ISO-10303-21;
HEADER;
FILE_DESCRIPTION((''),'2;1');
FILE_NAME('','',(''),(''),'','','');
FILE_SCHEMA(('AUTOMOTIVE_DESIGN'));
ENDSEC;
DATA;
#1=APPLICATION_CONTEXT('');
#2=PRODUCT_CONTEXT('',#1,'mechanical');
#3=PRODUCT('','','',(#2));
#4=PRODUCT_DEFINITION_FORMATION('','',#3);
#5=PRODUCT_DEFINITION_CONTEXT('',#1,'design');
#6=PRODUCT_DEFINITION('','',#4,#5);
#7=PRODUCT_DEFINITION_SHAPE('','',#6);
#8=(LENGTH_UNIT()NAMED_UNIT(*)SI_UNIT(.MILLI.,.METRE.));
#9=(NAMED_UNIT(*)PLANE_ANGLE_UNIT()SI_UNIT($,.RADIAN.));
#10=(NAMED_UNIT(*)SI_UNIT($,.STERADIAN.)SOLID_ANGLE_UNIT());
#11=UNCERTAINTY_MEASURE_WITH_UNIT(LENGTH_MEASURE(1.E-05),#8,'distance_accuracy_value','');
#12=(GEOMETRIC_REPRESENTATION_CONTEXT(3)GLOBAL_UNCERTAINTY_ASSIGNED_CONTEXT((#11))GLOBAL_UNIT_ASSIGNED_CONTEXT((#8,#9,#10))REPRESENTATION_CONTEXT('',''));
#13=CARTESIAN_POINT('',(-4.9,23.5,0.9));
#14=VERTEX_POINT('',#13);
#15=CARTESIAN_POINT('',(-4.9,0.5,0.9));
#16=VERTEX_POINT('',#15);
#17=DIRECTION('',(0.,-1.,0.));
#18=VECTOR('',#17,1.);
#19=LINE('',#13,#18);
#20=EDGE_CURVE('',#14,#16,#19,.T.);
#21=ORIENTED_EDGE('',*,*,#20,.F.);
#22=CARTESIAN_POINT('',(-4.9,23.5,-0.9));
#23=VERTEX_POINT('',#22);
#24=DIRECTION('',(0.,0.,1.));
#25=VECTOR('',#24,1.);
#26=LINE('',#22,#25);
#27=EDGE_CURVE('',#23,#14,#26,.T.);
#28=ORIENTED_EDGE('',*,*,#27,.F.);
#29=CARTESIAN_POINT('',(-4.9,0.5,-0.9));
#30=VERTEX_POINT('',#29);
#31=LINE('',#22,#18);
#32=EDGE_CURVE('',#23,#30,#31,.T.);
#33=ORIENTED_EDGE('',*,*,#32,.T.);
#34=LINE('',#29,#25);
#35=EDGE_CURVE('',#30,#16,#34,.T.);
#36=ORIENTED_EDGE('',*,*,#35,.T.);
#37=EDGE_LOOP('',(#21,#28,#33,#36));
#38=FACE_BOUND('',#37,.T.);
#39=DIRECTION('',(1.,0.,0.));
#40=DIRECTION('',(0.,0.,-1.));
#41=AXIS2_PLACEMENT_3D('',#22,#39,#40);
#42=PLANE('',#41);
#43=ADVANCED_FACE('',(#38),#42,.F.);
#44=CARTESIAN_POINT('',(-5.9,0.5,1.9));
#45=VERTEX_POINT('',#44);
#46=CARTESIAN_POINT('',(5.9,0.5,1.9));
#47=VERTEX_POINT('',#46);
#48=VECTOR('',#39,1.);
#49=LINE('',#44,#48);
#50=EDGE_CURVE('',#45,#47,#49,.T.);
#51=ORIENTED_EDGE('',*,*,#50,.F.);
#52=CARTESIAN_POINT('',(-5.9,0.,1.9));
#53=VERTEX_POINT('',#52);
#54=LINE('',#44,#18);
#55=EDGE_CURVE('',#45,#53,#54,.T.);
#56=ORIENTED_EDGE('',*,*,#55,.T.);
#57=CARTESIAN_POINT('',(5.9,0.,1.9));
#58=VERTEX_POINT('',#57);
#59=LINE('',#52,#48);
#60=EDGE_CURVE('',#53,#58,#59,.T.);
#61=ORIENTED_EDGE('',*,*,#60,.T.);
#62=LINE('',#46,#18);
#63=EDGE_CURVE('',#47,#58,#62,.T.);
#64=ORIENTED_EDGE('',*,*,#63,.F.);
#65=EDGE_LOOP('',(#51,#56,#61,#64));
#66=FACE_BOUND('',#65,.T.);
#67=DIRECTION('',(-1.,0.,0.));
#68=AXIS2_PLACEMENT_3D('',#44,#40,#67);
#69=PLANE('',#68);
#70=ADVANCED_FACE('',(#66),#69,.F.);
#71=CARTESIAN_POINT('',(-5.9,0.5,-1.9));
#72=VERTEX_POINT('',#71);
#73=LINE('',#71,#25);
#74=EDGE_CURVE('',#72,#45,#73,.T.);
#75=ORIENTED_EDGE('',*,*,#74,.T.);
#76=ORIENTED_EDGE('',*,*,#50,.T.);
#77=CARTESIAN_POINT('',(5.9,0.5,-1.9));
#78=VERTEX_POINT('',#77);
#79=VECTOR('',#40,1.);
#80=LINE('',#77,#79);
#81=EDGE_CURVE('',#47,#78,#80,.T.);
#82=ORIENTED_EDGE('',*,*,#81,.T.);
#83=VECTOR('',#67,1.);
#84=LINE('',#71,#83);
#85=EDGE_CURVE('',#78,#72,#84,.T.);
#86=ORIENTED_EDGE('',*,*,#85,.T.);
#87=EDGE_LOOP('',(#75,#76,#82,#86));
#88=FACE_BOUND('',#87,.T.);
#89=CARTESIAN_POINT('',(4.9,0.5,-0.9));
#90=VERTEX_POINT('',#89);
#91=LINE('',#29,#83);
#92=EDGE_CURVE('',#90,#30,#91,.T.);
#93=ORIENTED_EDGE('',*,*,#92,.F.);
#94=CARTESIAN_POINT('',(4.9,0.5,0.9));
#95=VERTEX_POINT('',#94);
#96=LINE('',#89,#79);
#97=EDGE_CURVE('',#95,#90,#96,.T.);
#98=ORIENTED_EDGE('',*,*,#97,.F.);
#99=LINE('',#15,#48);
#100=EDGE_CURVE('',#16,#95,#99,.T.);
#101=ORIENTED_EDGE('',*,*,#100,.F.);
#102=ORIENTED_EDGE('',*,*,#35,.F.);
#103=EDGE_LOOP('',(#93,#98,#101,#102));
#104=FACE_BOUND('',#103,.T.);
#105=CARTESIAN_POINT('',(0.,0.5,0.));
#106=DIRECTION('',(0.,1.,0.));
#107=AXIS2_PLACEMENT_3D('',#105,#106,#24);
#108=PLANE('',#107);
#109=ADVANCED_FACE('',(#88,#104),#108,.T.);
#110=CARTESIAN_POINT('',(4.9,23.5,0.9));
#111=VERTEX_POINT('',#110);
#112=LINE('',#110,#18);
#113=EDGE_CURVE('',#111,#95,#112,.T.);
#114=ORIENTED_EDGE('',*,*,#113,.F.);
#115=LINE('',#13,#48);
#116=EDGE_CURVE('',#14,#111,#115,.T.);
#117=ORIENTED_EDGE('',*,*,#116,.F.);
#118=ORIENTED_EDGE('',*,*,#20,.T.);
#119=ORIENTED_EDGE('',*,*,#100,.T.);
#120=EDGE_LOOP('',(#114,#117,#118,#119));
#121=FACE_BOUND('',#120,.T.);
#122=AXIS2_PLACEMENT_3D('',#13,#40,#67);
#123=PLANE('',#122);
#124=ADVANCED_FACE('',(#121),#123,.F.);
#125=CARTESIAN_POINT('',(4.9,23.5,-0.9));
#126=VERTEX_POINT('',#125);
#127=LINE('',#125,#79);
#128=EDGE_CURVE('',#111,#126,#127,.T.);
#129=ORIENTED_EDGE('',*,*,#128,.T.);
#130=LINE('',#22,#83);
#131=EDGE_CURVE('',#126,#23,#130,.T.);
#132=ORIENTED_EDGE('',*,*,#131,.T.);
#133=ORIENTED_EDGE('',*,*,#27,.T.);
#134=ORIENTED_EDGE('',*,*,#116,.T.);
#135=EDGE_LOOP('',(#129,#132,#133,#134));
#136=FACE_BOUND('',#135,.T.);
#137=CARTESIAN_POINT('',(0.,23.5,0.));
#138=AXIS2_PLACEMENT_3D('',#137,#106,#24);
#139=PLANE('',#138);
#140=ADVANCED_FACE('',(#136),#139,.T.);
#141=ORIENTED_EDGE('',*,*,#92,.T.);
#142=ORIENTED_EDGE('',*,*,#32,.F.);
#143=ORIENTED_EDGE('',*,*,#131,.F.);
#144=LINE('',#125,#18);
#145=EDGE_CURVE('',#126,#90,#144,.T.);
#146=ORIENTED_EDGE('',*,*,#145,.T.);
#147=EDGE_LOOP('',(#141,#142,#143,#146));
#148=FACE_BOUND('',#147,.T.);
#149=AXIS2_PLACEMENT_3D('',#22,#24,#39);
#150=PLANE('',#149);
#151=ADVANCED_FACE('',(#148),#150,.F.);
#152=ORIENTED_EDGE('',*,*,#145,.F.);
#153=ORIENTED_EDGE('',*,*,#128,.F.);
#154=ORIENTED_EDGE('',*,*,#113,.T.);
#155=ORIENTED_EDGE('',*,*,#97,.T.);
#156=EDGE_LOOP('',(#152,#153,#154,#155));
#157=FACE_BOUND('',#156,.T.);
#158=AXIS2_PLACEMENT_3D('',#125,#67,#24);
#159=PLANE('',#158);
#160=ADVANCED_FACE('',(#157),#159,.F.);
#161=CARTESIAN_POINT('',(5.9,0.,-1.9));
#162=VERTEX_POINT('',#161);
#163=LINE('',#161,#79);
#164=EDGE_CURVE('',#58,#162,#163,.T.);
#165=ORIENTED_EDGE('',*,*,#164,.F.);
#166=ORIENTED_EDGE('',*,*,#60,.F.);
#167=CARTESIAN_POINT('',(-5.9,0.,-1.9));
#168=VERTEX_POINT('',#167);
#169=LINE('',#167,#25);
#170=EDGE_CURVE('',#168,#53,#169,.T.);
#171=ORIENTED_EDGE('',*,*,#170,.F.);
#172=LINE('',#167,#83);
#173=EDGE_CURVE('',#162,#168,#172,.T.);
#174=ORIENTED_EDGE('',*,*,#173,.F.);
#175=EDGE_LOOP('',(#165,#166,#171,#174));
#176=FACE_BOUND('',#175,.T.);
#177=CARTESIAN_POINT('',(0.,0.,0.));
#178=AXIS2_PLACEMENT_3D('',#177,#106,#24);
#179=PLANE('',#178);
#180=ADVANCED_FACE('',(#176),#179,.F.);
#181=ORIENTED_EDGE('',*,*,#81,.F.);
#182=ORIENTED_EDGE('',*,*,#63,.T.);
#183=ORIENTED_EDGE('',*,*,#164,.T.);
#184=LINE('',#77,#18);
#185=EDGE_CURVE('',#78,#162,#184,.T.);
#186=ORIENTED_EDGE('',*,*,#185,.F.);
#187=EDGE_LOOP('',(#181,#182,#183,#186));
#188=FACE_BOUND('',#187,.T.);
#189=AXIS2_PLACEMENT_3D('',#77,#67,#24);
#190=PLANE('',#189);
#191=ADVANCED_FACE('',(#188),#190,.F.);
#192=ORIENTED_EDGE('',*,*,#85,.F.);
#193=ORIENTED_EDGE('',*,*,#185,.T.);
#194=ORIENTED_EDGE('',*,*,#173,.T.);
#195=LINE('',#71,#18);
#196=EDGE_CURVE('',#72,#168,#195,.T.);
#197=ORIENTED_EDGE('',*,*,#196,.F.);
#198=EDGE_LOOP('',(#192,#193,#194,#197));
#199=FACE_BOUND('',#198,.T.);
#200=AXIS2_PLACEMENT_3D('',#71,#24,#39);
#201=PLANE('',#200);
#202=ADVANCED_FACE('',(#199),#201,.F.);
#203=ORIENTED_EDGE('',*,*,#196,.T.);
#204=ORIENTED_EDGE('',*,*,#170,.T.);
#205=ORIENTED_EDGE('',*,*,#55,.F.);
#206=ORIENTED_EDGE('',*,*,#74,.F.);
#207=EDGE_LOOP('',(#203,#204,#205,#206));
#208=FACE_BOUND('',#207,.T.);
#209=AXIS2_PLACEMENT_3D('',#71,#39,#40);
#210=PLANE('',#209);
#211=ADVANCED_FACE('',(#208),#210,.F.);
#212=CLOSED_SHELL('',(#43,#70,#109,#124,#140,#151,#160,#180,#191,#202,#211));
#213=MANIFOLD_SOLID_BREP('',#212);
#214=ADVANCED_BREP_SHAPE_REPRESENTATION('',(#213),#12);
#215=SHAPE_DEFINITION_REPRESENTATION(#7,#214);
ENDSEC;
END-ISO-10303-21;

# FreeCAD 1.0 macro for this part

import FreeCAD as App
import Part
import Sketcher
Q = App.Units.Quantity


def add_polygon(sketch, points):
    """Adds a closed chain of lines whose ends are joined by coincident constraints."""
    first, n = sketch.GeometryCount, len(points)
    for a, b in zip(points, points[1:] + points[:1]):
        sketch.addGeometry(Part.LineSegment(App.Vector(*a, 0), App.Vector(*b, 0)), False)
    for i in range(n):
        sketch.addConstraint(Sketcher.Constraint("Coincident", first + i, 2, first + (i + 1) % n, 1))

doc = App.newDocument("Part")
body = doc.addObject("PartDesign::Body", "Body")

# Sketch on XZ plane
sketch1 = body.newObject("Sketcher::SketchObject", "Sketch")
sketch1.AttachmentSupport = (doc.getObject("XZ_Plane"), [""])
sketch1.MapMode = "FlatFace"
add_polygon(sketch1, [(-5.9, -1.9), (-5.9, 1.9), (5.9, 1.9), (5.9, -1.9)])  # lines 0-3
sketch1.addConstraint([
    Sketcher.Constraint("Vertical", 0),
    Sketcher.Constraint("Horizontal", 1),
    Sketcher.Constraint("Vertical", 2),
    Sketcher.Constraint("Horizontal", 3),
    Sketcher.Constraint("Symmetric", 0, 2, 2, 2, -1, 1),
    Sketcher.Constraint("DistanceX", 1, 1, 1, 2, Q("11.8 mm")),
    Sketcher.Constraint("DistanceY", 0, 1, 0, 2, Q("3.8 mm")),
])
pad1 = body.newObject("PartDesign::Pad", "Pad")
pad1.Profile = sketch1
pad1.Length = 0.5
pad1.Reversed = True

# Sketch on XZ plane
sketch2 = body.newObject("Sketcher::SketchObject", "Sketch001")
sketch2.AttachmentSupport = (doc.getObject("XZ_Plane"), [""])
sketch2.MapMode = "FlatFace"
sketch2.AttachmentOffset = App.Placement(App.Vector(0, 0, -0.5), App.Rotation())
add_polygon(sketch2, [(-4.9, -0.9), (-4.9, 0.9), (4.9, 0.9), (4.9, -0.9)])  # lines 0-3
sketch2.addConstraint([
    Sketcher.Constraint("Vertical", 0),
    Sketcher.Constraint("Horizontal", 1),
    Sketcher.Constraint("Vertical", 2),
    Sketcher.Constraint("Horizontal", 3),
    Sketcher.Constraint("Symmetric", 0, 2, 2, 2, -1, 1),
    Sketcher.Constraint("DistanceX", 1, 1, 1, 2, Q("9.8 mm")),
    Sketcher.Constraint("DistanceY", 0, 1, 0, 2, Q("1.8 mm")),
])
pad2 = body.newObject("PartDesign::Pad", "Pad001")
pad2.Profile = sketch2
pad2.Length = 23
pad2.Reversed = True

doc.recompute()
